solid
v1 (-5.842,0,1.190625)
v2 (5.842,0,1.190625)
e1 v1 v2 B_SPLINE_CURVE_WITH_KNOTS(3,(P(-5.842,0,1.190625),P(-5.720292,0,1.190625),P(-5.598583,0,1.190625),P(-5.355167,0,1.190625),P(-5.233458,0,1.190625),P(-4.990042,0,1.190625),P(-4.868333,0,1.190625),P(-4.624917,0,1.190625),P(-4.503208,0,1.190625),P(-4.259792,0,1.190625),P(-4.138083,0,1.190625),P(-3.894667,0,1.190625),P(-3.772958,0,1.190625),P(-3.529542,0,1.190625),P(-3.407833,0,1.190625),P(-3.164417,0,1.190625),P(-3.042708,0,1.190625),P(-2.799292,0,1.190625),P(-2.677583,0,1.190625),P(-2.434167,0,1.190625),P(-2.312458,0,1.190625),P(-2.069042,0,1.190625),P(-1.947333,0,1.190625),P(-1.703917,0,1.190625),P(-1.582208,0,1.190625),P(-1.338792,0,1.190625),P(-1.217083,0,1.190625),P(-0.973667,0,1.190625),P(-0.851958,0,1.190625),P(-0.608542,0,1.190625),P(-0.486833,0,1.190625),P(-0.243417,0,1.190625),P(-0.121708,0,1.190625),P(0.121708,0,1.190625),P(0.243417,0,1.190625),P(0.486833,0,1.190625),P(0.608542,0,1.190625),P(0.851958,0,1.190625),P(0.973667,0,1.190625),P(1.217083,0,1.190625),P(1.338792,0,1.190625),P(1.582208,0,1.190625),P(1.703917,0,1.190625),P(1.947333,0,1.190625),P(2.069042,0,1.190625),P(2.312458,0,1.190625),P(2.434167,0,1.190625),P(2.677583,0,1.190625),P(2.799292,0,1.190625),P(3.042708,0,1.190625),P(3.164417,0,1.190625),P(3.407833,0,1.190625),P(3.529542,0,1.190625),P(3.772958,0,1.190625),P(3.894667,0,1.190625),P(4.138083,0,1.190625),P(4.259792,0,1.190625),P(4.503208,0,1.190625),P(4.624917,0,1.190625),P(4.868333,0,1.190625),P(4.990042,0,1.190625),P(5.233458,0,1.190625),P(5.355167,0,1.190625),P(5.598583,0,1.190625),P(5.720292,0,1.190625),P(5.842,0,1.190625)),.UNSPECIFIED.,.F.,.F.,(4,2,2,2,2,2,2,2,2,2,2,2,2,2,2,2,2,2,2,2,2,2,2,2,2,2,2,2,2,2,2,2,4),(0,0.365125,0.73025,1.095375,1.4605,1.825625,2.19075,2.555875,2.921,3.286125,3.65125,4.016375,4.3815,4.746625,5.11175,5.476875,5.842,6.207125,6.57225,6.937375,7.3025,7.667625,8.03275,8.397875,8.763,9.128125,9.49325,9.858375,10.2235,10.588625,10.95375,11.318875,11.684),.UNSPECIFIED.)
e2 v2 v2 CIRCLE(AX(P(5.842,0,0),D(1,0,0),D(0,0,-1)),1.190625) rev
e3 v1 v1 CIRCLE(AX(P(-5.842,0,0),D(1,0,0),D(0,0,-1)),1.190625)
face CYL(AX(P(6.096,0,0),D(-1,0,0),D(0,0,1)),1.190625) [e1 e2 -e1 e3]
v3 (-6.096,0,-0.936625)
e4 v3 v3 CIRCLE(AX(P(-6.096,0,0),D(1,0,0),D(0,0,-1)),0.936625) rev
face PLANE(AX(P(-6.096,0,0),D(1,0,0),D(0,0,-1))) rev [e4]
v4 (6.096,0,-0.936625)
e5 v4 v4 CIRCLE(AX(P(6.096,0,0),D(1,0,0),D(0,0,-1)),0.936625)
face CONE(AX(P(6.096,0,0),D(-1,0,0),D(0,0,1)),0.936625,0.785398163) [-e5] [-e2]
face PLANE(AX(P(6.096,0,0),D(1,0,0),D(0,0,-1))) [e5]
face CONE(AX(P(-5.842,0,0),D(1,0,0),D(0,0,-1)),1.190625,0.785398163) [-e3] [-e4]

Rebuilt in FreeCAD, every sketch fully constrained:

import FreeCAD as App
import Part
import Sketcher
from FreeCAD import Vector
Q = App.Units.Quantity


def edges_at(feature, points):
    """Names of the edges that pass closest to the given points."""
    edges = feature.Shape.Edges
    near = lambda p: min(range(len(edges)), key=lambda i: edges[i].distToShape(Part.Vertex(*p))[0])
    return sorted({f"Edge{near(p) + 1}" for p in points})

doc = App.newDocument("Part")
params = doc.addObject("Spreadsheet::Sheet", "Params")
for row, (alias, value) in enumerate([
    ("sketch1_diameter", "0.09375 in"),
    ("pad1_length", "0.48 in"),
    ("chamfer_size", "0.01 in"),
], start=1):
    params.set(f"A{row}", alias)
    params.set(f"B{row}", "=" + value)
    params.setAlias(f"B{row}", alias)

body = doc.addObject("PartDesign::Body", "Body")

# Sketch on YZ plane
sketch1 = body.newObject("Sketcher::SketchObject", "Sketch")
sketch1.AttachmentSupport = (doc.getObject("YZ_Plane"), [""])
sketch1.MapMode = "FlatFace"
sketch1.addGeometry(Part.Circle(Vector(0, 0, 0), Vector(0, 0, 1), 1.2), False)
sketch1.addConstraint([
    Sketcher.Constraint("Coincident", 0, 3, -1, 1),
    Sketcher.Constraint("Diameter", 0, Q("0.09375 in")),
])
sketch1.setExpression("Constraints[1]", "Params.sketch1_diameter")
pad1 = body.newObject("PartDesign::Pad", "Pad")
pad1.Profile = sketch1
pad1.setExpression("Length", "Params.pad1_length")
pad1.Midplane = True
doc.recompute()

chamfer = body.newObject("PartDesign::Chamfer", "Chamfer")
chamfer.Base = (pad1, edges_at(pad1, [(-6.096, 0, -1.191), (6.096, 0, -1.191)]))
chamfer.setExpression("Size", "Params.chamfer_size")

doc.recompute()
